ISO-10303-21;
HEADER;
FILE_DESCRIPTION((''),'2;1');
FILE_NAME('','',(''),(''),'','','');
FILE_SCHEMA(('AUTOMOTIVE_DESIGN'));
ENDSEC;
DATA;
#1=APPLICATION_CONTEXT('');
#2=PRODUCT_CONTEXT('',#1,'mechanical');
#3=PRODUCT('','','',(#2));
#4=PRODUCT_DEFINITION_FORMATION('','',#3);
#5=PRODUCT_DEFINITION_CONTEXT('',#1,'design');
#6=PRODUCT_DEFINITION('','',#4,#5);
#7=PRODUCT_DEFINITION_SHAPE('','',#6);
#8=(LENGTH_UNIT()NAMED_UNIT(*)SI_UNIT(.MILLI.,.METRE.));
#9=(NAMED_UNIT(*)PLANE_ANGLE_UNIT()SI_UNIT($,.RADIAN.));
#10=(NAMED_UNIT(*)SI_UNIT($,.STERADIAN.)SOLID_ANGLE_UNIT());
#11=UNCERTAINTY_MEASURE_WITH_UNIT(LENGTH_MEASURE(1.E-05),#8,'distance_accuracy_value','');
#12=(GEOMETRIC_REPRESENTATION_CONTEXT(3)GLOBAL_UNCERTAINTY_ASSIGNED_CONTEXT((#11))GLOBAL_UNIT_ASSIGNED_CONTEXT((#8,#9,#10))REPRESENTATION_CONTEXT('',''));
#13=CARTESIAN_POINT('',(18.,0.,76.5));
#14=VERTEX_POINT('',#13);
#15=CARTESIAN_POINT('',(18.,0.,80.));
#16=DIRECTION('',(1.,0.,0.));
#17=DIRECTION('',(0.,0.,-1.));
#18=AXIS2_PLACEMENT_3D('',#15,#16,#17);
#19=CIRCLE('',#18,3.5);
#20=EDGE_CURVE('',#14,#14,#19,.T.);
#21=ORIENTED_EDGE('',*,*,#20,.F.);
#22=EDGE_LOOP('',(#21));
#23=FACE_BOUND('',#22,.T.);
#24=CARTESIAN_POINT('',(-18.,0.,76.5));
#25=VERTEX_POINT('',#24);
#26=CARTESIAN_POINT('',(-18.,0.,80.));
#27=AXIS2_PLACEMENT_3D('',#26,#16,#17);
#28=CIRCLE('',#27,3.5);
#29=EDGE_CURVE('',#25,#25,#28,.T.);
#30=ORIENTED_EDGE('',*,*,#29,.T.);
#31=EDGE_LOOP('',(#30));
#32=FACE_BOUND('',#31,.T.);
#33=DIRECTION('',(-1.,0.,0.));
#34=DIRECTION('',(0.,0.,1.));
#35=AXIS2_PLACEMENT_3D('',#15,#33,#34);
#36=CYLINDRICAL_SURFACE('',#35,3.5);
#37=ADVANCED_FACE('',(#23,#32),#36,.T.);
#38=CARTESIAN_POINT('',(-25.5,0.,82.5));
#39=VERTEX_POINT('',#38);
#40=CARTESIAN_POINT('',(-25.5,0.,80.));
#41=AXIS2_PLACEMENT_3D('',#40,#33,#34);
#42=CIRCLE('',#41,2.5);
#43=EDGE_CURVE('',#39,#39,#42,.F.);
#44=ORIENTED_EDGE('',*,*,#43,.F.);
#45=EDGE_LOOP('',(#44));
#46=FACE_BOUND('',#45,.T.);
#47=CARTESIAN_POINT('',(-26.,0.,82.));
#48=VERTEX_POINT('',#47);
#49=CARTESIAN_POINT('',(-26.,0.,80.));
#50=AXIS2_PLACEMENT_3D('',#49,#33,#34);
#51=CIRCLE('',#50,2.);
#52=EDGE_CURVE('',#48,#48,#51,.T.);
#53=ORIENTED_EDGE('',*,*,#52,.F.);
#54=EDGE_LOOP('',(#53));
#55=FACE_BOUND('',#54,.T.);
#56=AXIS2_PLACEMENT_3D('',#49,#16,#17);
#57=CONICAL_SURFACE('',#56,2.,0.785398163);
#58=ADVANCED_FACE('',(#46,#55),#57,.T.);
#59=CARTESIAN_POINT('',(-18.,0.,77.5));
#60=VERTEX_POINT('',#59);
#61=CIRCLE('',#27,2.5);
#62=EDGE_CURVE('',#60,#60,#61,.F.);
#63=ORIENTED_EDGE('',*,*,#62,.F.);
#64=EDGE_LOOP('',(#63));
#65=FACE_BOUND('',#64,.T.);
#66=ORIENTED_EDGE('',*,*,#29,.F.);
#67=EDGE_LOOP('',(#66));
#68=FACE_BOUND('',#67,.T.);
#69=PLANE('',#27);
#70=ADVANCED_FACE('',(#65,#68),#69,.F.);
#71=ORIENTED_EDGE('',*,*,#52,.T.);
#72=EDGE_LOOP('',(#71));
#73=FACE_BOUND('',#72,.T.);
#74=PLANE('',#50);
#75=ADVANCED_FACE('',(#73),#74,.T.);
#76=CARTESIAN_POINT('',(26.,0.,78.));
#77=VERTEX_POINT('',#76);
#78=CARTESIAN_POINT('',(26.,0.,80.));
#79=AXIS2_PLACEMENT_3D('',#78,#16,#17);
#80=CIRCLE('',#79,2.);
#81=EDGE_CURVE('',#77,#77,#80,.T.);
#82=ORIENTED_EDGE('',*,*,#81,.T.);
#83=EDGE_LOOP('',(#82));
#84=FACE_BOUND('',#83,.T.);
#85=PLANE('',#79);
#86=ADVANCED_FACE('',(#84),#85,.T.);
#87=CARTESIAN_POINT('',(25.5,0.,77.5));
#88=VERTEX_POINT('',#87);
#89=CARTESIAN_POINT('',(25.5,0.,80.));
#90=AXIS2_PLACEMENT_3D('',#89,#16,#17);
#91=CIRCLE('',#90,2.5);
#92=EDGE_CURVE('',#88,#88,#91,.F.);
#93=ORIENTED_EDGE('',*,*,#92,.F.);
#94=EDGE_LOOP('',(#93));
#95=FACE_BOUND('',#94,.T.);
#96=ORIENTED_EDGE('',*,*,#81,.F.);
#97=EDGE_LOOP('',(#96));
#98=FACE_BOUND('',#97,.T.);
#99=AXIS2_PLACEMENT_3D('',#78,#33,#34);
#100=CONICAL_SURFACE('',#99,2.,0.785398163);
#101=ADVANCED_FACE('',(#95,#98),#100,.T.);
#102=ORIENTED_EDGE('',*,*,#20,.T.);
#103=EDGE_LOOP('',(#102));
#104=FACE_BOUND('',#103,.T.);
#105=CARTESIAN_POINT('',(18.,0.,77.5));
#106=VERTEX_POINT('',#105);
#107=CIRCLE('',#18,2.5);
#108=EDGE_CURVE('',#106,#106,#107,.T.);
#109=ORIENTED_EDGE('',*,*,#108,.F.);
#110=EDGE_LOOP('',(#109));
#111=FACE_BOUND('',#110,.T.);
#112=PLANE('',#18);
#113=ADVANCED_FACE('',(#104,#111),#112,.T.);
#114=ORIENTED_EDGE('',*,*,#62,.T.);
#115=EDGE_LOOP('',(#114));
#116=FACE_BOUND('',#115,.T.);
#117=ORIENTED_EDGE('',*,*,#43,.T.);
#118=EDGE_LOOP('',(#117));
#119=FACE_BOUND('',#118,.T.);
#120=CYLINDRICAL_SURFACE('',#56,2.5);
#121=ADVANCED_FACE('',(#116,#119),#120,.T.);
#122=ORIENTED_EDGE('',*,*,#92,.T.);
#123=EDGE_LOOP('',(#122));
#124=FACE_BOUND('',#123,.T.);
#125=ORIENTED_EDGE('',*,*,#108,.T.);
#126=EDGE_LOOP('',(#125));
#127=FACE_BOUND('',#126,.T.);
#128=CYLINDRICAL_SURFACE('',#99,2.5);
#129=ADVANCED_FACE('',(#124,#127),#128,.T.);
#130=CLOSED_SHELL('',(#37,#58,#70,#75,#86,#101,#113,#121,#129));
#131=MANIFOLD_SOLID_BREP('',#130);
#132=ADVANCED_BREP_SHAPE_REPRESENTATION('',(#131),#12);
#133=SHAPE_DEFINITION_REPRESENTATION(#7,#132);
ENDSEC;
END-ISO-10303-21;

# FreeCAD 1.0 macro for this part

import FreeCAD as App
import Part
import Sketcher


def edges_at(feature, points):
    """Names of the edges that pass closest to the given points."""
    edges = feature.Shape.Edges
    near = lambda p: min(range(len(edges)), key=lambda i: edges[i].distToShape(Part.Vertex(*p))[0])
    return sorted({f"Edge{near(p) + 1}" for p in points})

doc = App.newDocument("Part")
params = doc.addObject("Spreadsheet::Sheet", "Params")
for row, (alias, value) in enumerate([
    ("sketch1_diameter", "7 mm"),
    ("pad1_length", "36 mm"),
    ("sketch2_diameter", "5 mm"),
    ("pad2_length", "8 mm"),
    ("sketch3_diameter", "5 mm"),
    ("pad3_length", "8 mm"),
    ("chamfer_size", "0.5 mm"),
], start=1):
    params.set(f"A{row}", alias)
    params.set(f"B{row}", "=" + value)
    params.setAlias(f"B{row}", alias)

body = doc.addObject("PartDesign::Body", "Body")

# Sketch on YZ plane
sketch1 = doc.addObject("Sketcher::SketchObject", "Sketch")
body.addObject(sketch1)
sketch1.AttachmentSupport = (doc.YZ_Plane, [""])
sketch1.MapMode = "FlatFace"
sketch1.addGeometry(Part.Circle(App.Vector(0, 80, 0), App.Vector(0, 0, 1), 3.5), False)
sketch1.addConstraint([
    Sketcher.Constraint("PointOnObject", 0, 3, -2),
    Sketcher.Constraint("Diameter", 0, 7.0),
    Sketcher.Constraint("DistanceY", -1, 1, 0, 3, 80.0),
])
sketch1.setExpression("Constraints[1]", "Params.sketch1_diameter")
pad1 = doc.addObject("PartDesign::Pad", "Pad")
body.addObject(pad1)
pad1.Profile = sketch1
pad1.setExpression("Length", "Params.pad1_length")
pad1.Midplane = True

# Sketch on YZ plane
sketch2 = doc.addObject("Sketcher::SketchObject", "Sketch001")
body.addObject(sketch2)
sketch2.AttachmentSupport = (doc.YZ_Plane, [""])
sketch2.MapMode = "FlatFace"
sketch2.AttachmentOffset = App.Placement(App.Vector(0, 0, 18), App.Rotation())
sketch2.addGeometry(Part.Circle(App.Vector(0, 80, 0), App.Vector(0, 0, 1), 2.5), False)
sketch2.addConstraint([
    Sketcher.Constraint("PointOnObject", 0, 3, -2),
    Sketcher.Constraint("Diameter", 0, 5.0),
    Sketcher.Constraint("DistanceY", -1, 1, 0, 3, 80.0),
])
sketch2.setExpression("Constraints[1]", "Params.sketch2_diameter")
pad2 = doc.addObject("PartDesign::Pad", "Pad001")
body.addObject(pad2)
pad2.Profile = sketch2
pad2.setExpression("Length", "Params.pad2_length")

# Sketch on YZ plane
sketch3 = doc.addObject("Sketcher::SketchObject", "Sketch002")
body.addObject(sketch3)
sketch3.AttachmentSupport = (doc.YZ_Plane, [""])
sketch3.MapMode = "FlatFace"
sketch3.AttachmentOffset = App.Placement(App.Vector(0, 0, -26), App.Rotation())
sketch3.addGeometry(Part.Circle(App.Vector(0, 80, 0), App.Vector(0, 0, 1), 2.5), False)
sketch3.addConstraint([
    Sketcher.Constraint("PointOnObject", 0, 3, -2),
    Sketcher.Constraint("Diameter", 0, 5.0),
    Sketcher.Constraint("DistanceY", -1, 1, 0, 3, 80.0),
])
sketch3.setExpression("Constraints[1]", "Params.sketch3_diameter")
pad3 = doc.addObject("PartDesign::Pad", "Pad002")
body.addObject(pad3)
pad3.Profile = sketch3
pad3.setExpression("Length", "Params.pad3_length")
doc.recompute()

chamfer = doc.addObject("PartDesign::Chamfer", "Chamfer")
body.addObject(chamfer)
chamfer.Base = (pad3, edges_at(pad3, [(-26, 0, 82.5), (26, 0, 82.5)]))
chamfer.setExpression("Size", "Params.chamfer_size")

doc.recompute()
